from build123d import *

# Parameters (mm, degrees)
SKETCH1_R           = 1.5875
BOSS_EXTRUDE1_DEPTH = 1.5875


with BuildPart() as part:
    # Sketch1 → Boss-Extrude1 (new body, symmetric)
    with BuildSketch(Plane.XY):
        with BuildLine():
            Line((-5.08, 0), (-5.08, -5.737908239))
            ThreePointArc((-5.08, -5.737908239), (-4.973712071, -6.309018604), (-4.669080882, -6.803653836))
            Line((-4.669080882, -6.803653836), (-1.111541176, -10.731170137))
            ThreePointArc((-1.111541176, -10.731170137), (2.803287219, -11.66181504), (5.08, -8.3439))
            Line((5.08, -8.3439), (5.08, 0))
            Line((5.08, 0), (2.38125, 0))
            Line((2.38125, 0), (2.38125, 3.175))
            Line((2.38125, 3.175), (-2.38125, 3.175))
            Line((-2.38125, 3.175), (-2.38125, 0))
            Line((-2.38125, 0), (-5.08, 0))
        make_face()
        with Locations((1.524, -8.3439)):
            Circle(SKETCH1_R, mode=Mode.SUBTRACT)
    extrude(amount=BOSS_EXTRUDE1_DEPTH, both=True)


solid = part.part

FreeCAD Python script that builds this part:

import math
import FreeCAD as App
import Part
import Sketcher
Q = App.Units.Quantity

doc = App.newDocument("Part")
params = doc.addObject("Spreadsheet::Sheet", "Params")
for row, (alias, value) in enumerate([
    ("sketch1_radius", "0.14 in"),
    ("sketch1_diameter", "0.125 in"),
    ("sketch1_width", "0.1875 in"),
    ("sketch1_height", "0.125 in"),
    ("pad1_length", "0.125 in"),
], start=1):
    params.set(f"A{row}", alias)
    params.set(f"B{row}", "=" + value)
    params.setAlias(f"B{row}", alias)

body = doc.addObject("PartDesign::Body", "Body")

sketch1 = body.newObject("Sketcher::SketchObject", "Sketch")
sketch1.AttachmentSupport = (doc.getObject("XY_Plane"), [""])
sketch1.MapMode = "FlatFace"
sketch1.addGeometry([
    Part.LineSegment(App.Vector(-5.1, 0, 0), App.Vector(-5.1, -5.7, 0)),
    Part.ArcOfCircle(Part.Circle(App.Vector(-3.5, -5.7, 0), App.Vector(0, 0, 1), 1.6), math.radians(-180), math.radians(-138)),
    Part.LineSegment(App.Vector(-4.7, -6.8, 0), App.Vector(-1.1, -10.7, 0)),
    Part.ArcOfCircle(Part.Circle(App.Vector(1.5, -8.3, 0), App.Vector(0, 0, 1), 3.6), math.radians(-138), math.radians(0)),
    Part.LineSegment(App.Vector(5.1, -8.3, 0), App.Vector(5.1, 0, 0)),
    Part.LineSegment(App.Vector(5.1, 0, 0), App.Vector(2.4, 0, 0)),
    Part.LineSegment(App.Vector(2.4, 0, 0), App.Vector(2.4, 3.2, 0)),
    Part.LineSegment(App.Vector(2.4, 3.2, 0), App.Vector(-2.4, 3.2, 0)),
    Part.LineSegment(App.Vector(-2.4, 3.2, 0), App.Vector(-2.4, 0, 0)),
    Part.LineSegment(App.Vector(-2.4, 0, 0), App.Vector(-5.1, 0, 0)),
    Part.Circle(App.Vector(1.5, -8.3, 0), App.Vector(0, 0, 1), 1.6),
], False)
sketch1.addConstraint([
    Sketcher.Constraint("Tangent", 0, 2, 1, 1),
    Sketcher.Constraint("Tangent", 1, 2, 2, 1),
    Sketcher.Constraint("Tangent", 2, 2, 3, 1),
    Sketcher.Constraint("Tangent", 3, 2, 4, 1),
    Sketcher.Constraint("Coincident", 4, 2, 5, 1),
    Sketcher.Constraint("Coincident", 5, 2, 6, 1),
    Sketcher.Constraint("Coincident", 6, 2, 7, 1),
    Sketcher.Constraint("Coincident", 7, 2, 8, 1),
    Sketcher.Constraint("Coincident", 8, 2, 9, 1),
    Sketcher.Constraint("Coincident", 9, 2, 0, 1),
    Sketcher.Constraint("Vertical", 0),
    Sketcher.Constraint("Vertical", 4),
    Sketcher.Constraint("Horizontal", 5),
    Sketcher.Constraint("Vertical", 6),
    Sketcher.Constraint("Horizontal", 7),
    Sketcher.Constraint("Vertical", 8),
    Sketcher.Constraint("Horizontal", 9),
    Sketcher.Constraint("Coincident", 10, 3, 3, 3),
    Sketcher.Constraint("Equal", 1, 10),
    Sketcher.Constraint("Symmetric", 5, 2, 8, 2, -1, 1),
    Sketcher.Constraint("Symmetric", 4, 2, 9, 2, -2),
    Sketcher.Constraint("Radius", 3, Q("0.14 in")),
    Sketcher.Constraint("Diameter", 10, Q("0.125 in")),
    Sketcher.Constraint("DistanceX", 0, 2, -1, 1, Q("0.2 in")),
    Sketcher.Constraint("DistanceX", 7, 2, 7, 1, Q("0.1875 in")),
    Sketcher.Constraint("DistanceY", 6, 1, 6, 2, Q("0.125 in")),
    Sketcher.Constraint("DistanceY", 4, 1, 4, 2, Q("0.3285 in")),
    Sketcher.Constraint("DistanceY", 0, 2, 0, 1, Q("5.737908 mm")),
])
sketch1.setExpression("Constraints[21]", "Params.sketch1_radius")
sketch1.setExpression("Constraints[22]", "Params.sketch1_diameter")
sketch1.setExpression("Constraints[24]", "Params.sketch1_width")
sketch1.setExpression("Constraints[25]", "Params.sketch1_height")
pad1 = body.newObject("PartDesign::Pad", "Pad")
pad1.Profile = sketch1
pad1.setExpression("Length", "Params.pad1_length")
pad1.Midplane = True

doc.recompute()
